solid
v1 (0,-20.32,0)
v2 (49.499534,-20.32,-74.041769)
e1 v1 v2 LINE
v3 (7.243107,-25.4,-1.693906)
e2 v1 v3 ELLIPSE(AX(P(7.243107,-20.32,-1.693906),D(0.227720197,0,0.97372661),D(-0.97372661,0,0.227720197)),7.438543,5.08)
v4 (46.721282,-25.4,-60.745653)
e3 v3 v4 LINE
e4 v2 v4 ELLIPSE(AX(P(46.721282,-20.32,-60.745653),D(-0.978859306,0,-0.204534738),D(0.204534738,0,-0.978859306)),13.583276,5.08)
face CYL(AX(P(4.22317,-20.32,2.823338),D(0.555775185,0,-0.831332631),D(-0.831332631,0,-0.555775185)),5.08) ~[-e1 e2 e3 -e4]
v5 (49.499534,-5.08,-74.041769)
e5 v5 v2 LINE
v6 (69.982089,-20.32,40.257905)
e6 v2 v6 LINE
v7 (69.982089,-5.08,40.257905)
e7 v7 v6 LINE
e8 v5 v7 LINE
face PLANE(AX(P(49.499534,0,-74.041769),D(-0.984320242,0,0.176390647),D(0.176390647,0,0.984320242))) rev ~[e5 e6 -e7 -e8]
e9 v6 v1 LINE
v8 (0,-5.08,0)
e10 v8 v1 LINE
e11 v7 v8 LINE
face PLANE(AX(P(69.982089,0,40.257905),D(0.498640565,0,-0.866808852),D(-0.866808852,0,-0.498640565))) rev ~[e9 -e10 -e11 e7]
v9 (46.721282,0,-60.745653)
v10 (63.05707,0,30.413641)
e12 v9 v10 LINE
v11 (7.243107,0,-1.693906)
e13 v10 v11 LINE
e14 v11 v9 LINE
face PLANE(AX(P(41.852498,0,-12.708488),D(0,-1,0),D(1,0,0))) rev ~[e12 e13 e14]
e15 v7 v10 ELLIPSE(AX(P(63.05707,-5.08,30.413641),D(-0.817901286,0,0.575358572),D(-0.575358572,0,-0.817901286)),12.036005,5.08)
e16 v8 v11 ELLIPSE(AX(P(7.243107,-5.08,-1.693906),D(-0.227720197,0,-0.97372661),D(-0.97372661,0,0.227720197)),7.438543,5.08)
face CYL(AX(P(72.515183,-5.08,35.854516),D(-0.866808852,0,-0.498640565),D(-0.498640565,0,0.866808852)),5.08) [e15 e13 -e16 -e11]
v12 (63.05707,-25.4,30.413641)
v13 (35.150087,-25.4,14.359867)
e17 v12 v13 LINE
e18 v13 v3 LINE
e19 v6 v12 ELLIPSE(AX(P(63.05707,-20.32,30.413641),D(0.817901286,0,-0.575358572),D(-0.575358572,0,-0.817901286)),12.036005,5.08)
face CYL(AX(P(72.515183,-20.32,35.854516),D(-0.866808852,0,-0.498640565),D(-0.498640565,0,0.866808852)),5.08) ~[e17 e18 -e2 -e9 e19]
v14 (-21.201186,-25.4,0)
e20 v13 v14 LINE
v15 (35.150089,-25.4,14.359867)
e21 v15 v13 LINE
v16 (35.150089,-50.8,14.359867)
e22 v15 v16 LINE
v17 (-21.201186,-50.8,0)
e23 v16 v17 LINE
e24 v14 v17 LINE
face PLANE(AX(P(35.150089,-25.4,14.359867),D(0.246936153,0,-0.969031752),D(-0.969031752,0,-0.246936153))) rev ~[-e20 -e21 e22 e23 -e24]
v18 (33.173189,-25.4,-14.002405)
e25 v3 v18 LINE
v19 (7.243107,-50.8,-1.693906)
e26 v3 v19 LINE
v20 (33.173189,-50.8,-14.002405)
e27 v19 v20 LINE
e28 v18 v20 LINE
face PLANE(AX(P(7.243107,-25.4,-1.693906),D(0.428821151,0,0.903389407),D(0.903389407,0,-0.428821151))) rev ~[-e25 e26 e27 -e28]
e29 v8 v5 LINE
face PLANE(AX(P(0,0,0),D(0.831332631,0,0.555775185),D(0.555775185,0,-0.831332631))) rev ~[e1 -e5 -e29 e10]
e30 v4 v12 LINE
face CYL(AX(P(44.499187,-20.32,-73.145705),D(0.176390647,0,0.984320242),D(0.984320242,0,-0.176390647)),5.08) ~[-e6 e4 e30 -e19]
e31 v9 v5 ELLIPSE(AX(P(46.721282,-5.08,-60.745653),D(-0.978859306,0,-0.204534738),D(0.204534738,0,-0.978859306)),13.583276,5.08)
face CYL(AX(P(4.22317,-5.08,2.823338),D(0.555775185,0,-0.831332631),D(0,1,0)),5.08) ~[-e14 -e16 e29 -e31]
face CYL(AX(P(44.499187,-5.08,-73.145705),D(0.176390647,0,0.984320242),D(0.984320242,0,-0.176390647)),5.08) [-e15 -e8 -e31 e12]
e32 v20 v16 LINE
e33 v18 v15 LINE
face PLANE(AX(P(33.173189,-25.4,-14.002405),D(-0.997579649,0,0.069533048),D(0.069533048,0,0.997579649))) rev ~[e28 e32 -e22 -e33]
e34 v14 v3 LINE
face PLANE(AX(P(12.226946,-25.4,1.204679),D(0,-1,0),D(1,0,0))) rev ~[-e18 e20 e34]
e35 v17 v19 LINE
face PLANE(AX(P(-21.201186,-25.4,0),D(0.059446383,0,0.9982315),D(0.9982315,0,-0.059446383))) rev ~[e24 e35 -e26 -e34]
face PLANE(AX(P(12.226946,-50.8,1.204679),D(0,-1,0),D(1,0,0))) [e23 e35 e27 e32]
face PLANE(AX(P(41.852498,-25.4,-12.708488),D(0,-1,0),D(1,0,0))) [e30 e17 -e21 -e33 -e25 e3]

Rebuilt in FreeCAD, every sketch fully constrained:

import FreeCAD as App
import Part
import Sketcher

V = App.Vector
Q = App.Units.Quantity


def edges_at(feature, points):
    """Names of the edges that pass closest to the given points."""
    edges = feature.Shape.Edges
    near = lambda p: min(range(len(edges)), key=lambda i: edges[i].distToShape(Part.Vertex(*p))[0])
    return sorted({f"Edge{near(p) + 1}" for p in points})

doc = App.newDocument("Part")
params = doc.addObject("Spreadsheet::Sheet", "Params")
for row, (alias, value) in enumerate([
    ("pad1_length", "1 in"),
    ("fillet_radius", "0.2 in"),
    ("fillet2_radius", "0.2 in"),
    ("pad2_length", "1 in"),
], start=1):
    params.set(f"A{row}", alias)
    params.set(f"B{row}", "=" + value)
    params.setAlias(f"B{row}", alias)

body = doc.addObject("PartDesign::Body", "Body")

# Sketch on XZ plane
sketch1 = doc.addObject("Sketcher::SketchObject", "Sketch")
body.addObject(sketch1)
sketch1.AttachmentSupport = (doc.XZ_Plane, [""])
sketch1.MapMode = "FlatFace"
sketch1.addGeometry([
    Part.LineSegment(V(70, 40, 0), V(0, 0, 0)),
    Part.LineSegment(V(0, 0, 0), V(49, -74, 0)),
    Part.LineSegment(V(49, -74, 0), V(70, 40, 0)),
], False)
sketch1.addConstraint([
    Sketcher.Constraint("Coincident", 0, 2, 1, 1),
    Sketcher.Constraint("Coincident", 1, 2, 2, 1),
    Sketcher.Constraint("Coincident", 2, 2, 0, 1),
    Sketcher.Constraint("Coincident", 0, 2, -1, 1),
    Sketcher.Constraint("DistanceX", 1, 2, 2, 2, Q("0.8063998 in")),
    Sketcher.Constraint("Distance", 0, 80.735319),
    Sketcher.Constraint("Distance", 1, 89.063951),
    Sketcher.Constraint("DistanceY", 1, 2, -1, 1, 74.041769),
])
pad1 = doc.addObject("PartDesign::Pad", "Pad")
body.addObject(pad1)
pad1.Profile = sketch1
pad1.setExpression("Length", "Params.pad1_length")
doc.recompute()

fillet = doc.addObject("PartDesign::Fillet", "Fillet")
body.addObject(fillet)
fillet.Base = (pad1, edges_at(pad1, [(34.991, -25.4, 20.129), (24.75, -25.4, -37.021), (59.741, -25.4, -16.892)]))
fillet.setExpression("Radius", "Params.fillet_radius")
doc.recompute()

fillet2 = doc.addObject("PartDesign::Fillet", "Fillet001")
body.addObject(fillet2)
fillet2.Base = (fillet, edges_at(fillet, [(34.991, 0, 20.129), (24.75, 0, -37.021), (59.741, 0, -16.892)]))
fillet2.setExpression("Radius", "Params.fillet2_radius")

# Sketch on XZ plane
sketch2 = doc.addObject("Sketcher::SketchObject", "Sketch001")
body.addObject(sketch2)
sketch2.AttachmentSupport = (doc.XZ_Plane, [""])
sketch2.MapMode = "FlatFace"
sketch2.AttachmentOffset = App.Placement(V(0, 0, 1 * 25.4), App.Rotation())
sketch2.addGeometry([
    Part.LineSegment(V(-21, 0, 0), V(7, -2, 0)),
    Part.LineSegment(V(7, -2, 0), V(33, -14, 0)),
    Part.LineSegment(V(33, -14, 0), V(35, 14, 0)),
    Part.LineSegment(V(35, 14, 0), V(-21, 0, 0)),
], False)
sketch2.addConstraint([
    Sketcher.Constraint("Coincident", 0, 2, 1, 1),
    Sketcher.Constraint("Coincident", 1, 2, 2, 1),
    Sketcher.Constraint("Coincident", 2, 2, 3, 1),
    Sketcher.Constraint("Coincident", 3, 2, 0, 1),
    Sketcher.Constraint("PointOnObject", 3, 2, -1),
    Sketcher.Constraint("DistanceX", 0, 2, 2, 2, Q("1.0987001 in")),
    Sketcher.Constraint("DistanceY", 1, 2, 0, 2, 12.308499),
    Sketcher.Constraint("DistanceX", 1, 2, 2, 2, 1.9769),
    Sketcher.Constraint("DistanceX", -1, 1, 1, 2, 33.173189),
    Sketcher.Constraint("DistanceY", 1, 2, 2, 2, 28.362272),
    Sketcher.Constraint("Distance", 0, 28.494686),
    Sketcher.Constraint("Distance", 3, 58.152145),
])
pad2 = doc.addObject("PartDesign::Pad", "Pad001")
body.addObject(pad2)
pad2.Profile = sketch2
pad2.setExpression("Length", "Params.pad2_length")

doc.recompute()
